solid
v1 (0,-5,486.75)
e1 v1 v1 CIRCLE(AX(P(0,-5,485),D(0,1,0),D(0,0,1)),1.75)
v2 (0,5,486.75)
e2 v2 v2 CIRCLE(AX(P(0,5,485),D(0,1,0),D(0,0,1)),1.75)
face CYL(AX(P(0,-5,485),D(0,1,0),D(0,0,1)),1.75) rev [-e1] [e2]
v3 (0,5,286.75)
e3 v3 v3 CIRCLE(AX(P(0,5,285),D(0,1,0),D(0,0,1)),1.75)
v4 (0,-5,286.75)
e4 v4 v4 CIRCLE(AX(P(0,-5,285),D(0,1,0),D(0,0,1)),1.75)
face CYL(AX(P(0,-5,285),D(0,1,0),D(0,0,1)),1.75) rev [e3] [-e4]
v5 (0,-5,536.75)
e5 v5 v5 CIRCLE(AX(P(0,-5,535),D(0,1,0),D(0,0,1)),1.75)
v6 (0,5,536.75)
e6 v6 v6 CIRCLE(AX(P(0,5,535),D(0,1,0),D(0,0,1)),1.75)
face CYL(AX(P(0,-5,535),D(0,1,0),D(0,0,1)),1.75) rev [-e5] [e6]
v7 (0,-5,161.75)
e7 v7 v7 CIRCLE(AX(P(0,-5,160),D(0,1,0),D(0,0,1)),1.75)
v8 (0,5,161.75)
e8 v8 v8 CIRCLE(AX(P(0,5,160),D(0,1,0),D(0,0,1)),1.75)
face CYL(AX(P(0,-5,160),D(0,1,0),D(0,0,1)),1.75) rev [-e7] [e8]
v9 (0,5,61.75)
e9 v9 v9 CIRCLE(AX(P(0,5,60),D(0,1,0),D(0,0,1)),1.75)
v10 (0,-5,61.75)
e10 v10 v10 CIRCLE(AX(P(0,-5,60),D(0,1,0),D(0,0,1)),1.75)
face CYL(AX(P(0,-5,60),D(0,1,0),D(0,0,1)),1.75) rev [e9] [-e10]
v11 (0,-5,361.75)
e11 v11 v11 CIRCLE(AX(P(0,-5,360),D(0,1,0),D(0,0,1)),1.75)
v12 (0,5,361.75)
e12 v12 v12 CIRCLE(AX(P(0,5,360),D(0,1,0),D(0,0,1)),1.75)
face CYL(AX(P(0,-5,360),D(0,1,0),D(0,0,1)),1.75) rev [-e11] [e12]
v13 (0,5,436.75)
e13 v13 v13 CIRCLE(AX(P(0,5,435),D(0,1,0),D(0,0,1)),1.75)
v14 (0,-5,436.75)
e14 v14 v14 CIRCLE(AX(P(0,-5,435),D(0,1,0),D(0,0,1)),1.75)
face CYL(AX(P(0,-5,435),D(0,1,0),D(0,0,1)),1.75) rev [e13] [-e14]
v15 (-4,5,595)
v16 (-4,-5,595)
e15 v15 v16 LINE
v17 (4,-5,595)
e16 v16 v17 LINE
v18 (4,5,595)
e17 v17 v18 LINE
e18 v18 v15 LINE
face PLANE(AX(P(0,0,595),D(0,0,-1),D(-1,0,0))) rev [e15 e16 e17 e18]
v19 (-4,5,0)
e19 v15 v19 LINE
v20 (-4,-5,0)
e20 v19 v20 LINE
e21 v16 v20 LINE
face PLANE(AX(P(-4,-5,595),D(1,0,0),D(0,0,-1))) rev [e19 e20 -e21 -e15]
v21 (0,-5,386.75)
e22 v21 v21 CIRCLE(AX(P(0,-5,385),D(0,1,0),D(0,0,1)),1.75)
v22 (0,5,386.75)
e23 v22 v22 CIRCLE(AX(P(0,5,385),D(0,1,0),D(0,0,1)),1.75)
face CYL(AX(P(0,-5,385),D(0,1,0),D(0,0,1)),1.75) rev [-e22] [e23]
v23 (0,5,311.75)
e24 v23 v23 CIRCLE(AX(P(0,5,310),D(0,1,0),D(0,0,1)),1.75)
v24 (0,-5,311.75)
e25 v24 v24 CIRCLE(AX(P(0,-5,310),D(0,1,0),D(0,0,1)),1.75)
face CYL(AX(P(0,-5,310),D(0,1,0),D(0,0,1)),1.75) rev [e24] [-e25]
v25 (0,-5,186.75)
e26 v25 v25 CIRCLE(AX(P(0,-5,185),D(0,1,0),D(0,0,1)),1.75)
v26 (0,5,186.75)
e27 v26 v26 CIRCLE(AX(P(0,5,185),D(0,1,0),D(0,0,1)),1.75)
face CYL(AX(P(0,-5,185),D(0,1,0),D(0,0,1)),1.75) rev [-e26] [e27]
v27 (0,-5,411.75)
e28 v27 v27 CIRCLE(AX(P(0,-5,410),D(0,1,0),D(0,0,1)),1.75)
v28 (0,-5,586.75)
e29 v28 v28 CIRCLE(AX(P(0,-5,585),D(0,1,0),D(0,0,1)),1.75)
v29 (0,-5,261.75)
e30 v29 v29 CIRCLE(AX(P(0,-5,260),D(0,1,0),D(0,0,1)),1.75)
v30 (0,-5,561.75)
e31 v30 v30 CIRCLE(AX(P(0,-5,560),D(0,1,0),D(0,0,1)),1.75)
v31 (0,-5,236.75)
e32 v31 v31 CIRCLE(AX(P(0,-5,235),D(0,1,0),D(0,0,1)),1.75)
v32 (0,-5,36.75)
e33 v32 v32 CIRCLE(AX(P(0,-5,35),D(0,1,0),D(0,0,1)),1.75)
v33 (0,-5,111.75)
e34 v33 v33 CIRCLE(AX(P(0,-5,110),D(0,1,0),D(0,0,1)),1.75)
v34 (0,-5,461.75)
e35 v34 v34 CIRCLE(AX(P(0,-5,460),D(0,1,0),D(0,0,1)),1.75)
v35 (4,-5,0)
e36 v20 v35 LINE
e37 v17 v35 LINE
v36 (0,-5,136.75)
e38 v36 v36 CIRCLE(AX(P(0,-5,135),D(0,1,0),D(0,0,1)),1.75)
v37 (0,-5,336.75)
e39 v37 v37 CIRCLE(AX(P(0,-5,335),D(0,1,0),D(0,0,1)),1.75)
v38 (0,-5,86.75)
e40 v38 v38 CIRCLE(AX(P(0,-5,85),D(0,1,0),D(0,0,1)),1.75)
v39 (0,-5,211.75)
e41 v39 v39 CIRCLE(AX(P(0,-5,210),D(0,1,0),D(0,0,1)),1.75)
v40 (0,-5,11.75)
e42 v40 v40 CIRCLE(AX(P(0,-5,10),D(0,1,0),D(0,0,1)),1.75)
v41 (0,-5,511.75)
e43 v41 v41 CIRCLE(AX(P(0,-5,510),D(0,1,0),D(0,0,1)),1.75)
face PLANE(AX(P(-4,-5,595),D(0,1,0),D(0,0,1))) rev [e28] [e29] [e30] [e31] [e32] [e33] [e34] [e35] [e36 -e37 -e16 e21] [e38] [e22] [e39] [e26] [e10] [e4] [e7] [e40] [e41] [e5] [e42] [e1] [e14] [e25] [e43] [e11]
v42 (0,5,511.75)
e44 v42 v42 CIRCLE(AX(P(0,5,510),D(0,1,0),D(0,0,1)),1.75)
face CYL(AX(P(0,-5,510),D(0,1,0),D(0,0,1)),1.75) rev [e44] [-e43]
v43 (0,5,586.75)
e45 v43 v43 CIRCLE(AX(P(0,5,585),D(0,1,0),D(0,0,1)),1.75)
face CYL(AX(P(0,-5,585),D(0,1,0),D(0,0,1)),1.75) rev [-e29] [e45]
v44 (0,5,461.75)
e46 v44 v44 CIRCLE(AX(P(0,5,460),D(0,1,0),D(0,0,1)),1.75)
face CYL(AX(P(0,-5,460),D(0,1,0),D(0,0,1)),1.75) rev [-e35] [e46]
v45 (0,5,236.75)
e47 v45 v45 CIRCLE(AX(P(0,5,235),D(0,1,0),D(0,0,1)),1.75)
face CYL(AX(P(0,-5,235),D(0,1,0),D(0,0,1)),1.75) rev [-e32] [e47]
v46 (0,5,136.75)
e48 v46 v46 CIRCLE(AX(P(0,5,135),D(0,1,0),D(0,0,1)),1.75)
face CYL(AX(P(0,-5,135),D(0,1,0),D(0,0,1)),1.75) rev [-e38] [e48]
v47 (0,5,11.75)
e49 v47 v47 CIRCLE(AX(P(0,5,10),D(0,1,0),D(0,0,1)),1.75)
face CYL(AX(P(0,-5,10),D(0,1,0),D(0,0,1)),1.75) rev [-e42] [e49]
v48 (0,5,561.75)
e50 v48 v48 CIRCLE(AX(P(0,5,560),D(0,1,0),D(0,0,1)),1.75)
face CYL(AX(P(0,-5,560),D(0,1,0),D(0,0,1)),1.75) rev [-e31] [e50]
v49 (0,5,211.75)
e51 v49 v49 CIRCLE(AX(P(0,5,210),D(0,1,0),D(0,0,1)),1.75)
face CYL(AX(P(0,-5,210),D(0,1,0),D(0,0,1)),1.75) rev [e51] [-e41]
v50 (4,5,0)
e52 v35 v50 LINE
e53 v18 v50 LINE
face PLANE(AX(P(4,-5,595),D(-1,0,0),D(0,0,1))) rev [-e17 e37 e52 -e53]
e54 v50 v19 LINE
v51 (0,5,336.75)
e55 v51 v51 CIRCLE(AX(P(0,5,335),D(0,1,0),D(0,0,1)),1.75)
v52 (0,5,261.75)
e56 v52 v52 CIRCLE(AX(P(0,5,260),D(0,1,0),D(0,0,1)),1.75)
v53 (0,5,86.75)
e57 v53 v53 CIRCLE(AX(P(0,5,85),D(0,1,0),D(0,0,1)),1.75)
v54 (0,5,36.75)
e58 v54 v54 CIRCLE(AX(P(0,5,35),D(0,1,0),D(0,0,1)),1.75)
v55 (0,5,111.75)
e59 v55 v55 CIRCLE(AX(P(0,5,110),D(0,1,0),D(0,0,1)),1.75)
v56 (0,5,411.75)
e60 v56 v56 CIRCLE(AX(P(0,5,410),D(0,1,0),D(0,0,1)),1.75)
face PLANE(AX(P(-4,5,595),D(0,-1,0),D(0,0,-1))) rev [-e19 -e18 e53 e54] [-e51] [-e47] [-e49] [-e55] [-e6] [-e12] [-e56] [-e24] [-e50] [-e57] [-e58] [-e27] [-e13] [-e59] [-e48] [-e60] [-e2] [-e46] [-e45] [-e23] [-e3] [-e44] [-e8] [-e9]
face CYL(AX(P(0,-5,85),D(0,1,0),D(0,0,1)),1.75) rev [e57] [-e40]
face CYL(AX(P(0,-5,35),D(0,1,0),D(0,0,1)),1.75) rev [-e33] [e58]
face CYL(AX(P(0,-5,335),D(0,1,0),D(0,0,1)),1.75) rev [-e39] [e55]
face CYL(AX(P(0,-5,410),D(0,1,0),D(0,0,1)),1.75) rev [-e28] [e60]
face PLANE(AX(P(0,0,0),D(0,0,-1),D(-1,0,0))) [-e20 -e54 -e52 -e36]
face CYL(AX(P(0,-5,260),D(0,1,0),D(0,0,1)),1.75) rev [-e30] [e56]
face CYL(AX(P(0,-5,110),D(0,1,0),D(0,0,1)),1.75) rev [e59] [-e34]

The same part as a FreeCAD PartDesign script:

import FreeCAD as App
import Part
import Sketcher

V = App.Vector


def add_polygon(sketch, points):
    """Adds a closed chain of lines whose ends are joined by coincident constraints."""
    first, n = sketch.GeometryCount, len(points)
    for a, b in zip(points, points[1:] + points[:1]):
        sketch.addGeometry(Part.LineSegment(App.Vector(*a, 0), App.Vector(*b, 0)), False)
    for i in range(n):
        sketch.addConstraint(Sketcher.Constraint("Coincident", first + i, 2, first + (i + 1) % n, 1))

doc = App.newDocument("Part")
body = doc.addObject("PartDesign::Body", "Body")

# Sketch on XY plane
sketch1 = body.newObject("Sketcher::SketchObject", "Sketch")
sketch1.AttachmentSupport = (doc.getObject("XY_Plane"), [""])
sketch1.MapMode = "FlatFace"
add_polygon(sketch1, [(-4, 5), (-4, -5), (4, -5), (4, 5)])  # lines 0-3
sketch1.addConstraint([
    Sketcher.Constraint("Vertical", 0),
    Sketcher.Constraint("Horizontal", 1),
    Sketcher.Constraint("Vertical", 2),
    Sketcher.Constraint("Horizontal", 3),
    Sketcher.Constraint("Symmetric", 0, 2, 2, 2, -1, 1),
    Sketcher.Constraint("DistanceX", 1, 1, 1, 2, 8.0),
    Sketcher.Constraint("DistanceY", 0, 2, 0, 1, 10.0),
])
pad1 = body.newObject("PartDesign::Pad", "Pad")
pad1.Profile = sketch1
pad1.Length = 595

# Sketch on XZ plane
sketch2 = body.newObject("Sketcher::SketchObject", "Sketch001")
sketch2.AttachmentSupport = (doc.getObject("XZ_Plane"), [""])
sketch2.MapMode = "FlatFace"
sketch2.AttachmentOffset = App.Placement(V(0, 0, -5), App.Rotation())
sketch2.addGeometry(Part.Circle(V(0, 10, 0), V(0, 0, 1), 1.8), False)
sketch2.addConstraint([
    Sketcher.Constraint("PointOnObject", 0, 3, -2),
    Sketcher.Constraint("Diameter", 0, 3.5),
    Sketcher.Constraint("DistanceY", -1, 1, 0, 3, 10.0),
])
pocket1 = body.newObject("PartDesign::Pocket", "Pocket")
pocket1.Profile = sketch2
pocket1.Type = "ThroughAll"
pocket1.Reversed = True
doc.recompute()

linearpattern = body.newObject("PartDesign::LinearPattern", "LinearPattern")
linearpattern.Originals = [pocket1]
linearpattern.Direction = (doc.getObject("Z_Axis"), [""])
linearpattern.Mode = "offset"
linearpattern.Offset = 25
linearpattern.Occurrences = 24
body.Tip = linearpattern

doc.recompute()
